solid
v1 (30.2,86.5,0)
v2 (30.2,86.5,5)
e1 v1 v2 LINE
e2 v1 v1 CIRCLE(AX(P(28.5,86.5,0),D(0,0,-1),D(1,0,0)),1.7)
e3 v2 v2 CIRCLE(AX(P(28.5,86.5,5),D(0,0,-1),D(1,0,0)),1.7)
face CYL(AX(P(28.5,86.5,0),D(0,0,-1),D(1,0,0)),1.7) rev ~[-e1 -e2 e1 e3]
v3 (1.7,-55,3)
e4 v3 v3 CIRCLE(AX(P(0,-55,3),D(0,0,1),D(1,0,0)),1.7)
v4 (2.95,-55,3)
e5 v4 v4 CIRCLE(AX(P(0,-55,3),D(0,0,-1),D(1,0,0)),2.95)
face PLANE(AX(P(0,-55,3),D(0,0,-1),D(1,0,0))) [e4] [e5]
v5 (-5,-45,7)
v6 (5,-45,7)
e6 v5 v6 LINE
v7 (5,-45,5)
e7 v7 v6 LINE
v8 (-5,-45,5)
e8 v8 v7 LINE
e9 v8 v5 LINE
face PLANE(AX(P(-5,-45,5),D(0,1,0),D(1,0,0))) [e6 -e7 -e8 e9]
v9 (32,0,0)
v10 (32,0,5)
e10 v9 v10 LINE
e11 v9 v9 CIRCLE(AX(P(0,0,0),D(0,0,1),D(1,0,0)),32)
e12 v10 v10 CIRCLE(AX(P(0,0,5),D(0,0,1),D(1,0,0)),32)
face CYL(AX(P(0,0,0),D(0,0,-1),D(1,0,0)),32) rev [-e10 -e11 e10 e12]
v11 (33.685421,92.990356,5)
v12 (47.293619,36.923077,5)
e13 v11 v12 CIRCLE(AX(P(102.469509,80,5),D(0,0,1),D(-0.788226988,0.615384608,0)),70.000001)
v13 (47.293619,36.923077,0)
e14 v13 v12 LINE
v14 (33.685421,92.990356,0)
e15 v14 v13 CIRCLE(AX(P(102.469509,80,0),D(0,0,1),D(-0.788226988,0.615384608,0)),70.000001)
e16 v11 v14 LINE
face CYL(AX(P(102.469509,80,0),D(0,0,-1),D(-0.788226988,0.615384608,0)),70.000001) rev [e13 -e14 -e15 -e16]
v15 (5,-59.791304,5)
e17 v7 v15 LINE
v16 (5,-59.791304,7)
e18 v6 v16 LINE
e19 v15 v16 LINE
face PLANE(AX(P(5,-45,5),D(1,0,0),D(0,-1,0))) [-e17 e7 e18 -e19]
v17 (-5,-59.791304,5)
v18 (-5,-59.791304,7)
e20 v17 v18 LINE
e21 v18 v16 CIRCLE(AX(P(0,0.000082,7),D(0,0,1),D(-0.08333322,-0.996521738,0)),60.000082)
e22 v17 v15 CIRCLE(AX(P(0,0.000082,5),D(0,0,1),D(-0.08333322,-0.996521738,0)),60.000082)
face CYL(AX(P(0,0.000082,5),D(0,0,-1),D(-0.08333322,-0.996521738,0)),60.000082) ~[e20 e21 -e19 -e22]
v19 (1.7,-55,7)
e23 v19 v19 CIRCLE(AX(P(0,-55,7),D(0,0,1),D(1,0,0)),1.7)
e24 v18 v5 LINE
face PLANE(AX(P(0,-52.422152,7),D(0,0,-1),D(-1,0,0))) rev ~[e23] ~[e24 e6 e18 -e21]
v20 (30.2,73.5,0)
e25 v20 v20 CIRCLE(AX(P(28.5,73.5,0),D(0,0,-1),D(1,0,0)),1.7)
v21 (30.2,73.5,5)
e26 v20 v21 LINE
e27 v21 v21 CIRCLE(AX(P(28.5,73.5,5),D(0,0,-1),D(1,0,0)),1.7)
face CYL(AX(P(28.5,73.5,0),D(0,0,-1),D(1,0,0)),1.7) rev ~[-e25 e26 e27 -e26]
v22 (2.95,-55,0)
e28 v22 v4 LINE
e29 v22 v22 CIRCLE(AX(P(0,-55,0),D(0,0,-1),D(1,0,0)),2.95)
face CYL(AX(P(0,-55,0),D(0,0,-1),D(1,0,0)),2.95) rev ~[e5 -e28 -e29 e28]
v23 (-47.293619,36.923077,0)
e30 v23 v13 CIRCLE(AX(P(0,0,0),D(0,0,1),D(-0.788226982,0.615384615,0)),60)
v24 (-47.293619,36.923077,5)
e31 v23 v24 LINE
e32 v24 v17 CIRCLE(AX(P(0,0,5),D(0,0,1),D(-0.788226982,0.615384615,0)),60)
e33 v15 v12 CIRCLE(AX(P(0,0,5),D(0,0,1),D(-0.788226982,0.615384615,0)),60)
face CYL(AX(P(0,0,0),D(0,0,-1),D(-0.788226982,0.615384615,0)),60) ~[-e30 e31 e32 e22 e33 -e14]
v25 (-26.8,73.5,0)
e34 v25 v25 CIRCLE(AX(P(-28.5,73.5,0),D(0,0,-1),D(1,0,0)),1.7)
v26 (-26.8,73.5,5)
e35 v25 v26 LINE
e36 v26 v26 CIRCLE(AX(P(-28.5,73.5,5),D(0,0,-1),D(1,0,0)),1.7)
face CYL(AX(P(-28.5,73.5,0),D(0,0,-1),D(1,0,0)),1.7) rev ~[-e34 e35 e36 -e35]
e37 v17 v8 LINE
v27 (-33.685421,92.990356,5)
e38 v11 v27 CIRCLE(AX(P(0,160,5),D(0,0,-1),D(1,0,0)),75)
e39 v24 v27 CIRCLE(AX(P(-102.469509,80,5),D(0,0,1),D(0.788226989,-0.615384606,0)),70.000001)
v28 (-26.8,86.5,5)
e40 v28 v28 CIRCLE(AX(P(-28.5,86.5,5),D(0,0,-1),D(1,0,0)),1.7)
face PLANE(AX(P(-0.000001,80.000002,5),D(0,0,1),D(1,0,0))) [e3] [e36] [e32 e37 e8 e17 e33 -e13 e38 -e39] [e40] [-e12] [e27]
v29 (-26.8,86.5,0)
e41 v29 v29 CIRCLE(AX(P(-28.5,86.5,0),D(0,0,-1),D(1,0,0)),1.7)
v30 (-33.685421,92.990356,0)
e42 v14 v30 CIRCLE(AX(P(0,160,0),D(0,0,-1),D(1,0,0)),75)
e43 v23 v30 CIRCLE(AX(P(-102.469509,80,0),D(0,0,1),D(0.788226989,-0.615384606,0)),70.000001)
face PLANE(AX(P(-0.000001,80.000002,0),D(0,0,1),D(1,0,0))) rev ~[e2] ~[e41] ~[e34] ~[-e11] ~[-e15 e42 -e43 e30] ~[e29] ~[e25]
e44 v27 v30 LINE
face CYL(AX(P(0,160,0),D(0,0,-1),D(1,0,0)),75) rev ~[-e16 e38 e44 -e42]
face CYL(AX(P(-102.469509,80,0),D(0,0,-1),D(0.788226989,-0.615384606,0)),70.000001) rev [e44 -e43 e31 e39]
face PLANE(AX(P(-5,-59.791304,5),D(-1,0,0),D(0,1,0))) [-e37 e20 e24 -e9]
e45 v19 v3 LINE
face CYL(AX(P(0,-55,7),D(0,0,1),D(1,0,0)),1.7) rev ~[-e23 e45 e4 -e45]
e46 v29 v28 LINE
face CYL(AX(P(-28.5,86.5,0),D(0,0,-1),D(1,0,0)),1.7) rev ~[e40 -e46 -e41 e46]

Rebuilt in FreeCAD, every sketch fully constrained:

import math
import FreeCAD as App
import Part
import Sketcher

doc = App.newDocument("Part")
body = doc.addObject("PartDesign::Body", "Body")

# Sketch on XY plane
sketch1 = body.newObject("Sketcher::SketchObject", "Sketch")
sketch1.AttachmentSupport = (doc.getObject("XY_Plane"), [""])
sketch1.MapMode = "FlatFace"
sketch1.addGeometry(Part.ArcOfCircle(Part.Circle(App.Vector(0, 0, 0), App.Vector(0, 0, 1), 60), math.radians(142.020128), math.radians(397.979872)), False)
sketch1.addGeometry(Part.ArcOfCircle(Part.Circle(App.Vector(102.469509, 80, 0), App.Vector(0, 0, 1), 70.000001), math.radians(142.020128), math.radians(217.979872)), False)
sketch1.addGeometry(Part.ArcOfCircle(Part.Circle(App.Vector(0, 160, 0), App.Vector(0, 0, 1), 60), math.radians(-37.979873), math.radians(217.979813)), False)
sketch1.addGeometry(Part.ArcOfCircle(Part.Circle(App.Vector(-102.469509, 80, 0), App.Vector(0, 0, 1), 70.000001), math.radians(-37.979872), math.radians(37.979922)), False)
sketch1.addGeometry(Part.Circle(App.Vector(0, 0, 0), App.Vector(0, 0, 1), 32), False)
sketch1.addGeometry(Part.Circle(App.Vector(0, 160, 0), App.Vector(0, 0, 1), 32), False)
sketch1.addConstraint(Sketcher.Constraint("Coincident", 0, 2, 1, 2))
sketch1.addConstraint(Sketcher.Constraint("Coincident", 1, 1, 2, 1))
sketch1.addConstraint(Sketcher.Constraint("Coincident", 2, 2, 3, 2))
sketch1.addConstraint(Sketcher.Constraint("Coincident", 3, 1, 0, 1))
sketch1.addConstraint(Sketcher.Constraint("Coincident", 0, 3, -1, 1))
sketch1.addConstraint(Sketcher.Constraint("Coincident", 4, 3, -1, 1))
sketch1.addConstraint(Sketcher.Constraint("Coincident", 5, 3, 2, 3))
sketch1.addConstraint(Sketcher.Constraint("PointOnObject", 2, 3, -2))
sketch1.addConstraint(Sketcher.Constraint("Diameter", 4, 64.0))
sketch1.addConstraint(Sketcher.Constraint("Diameter", 5, 64.0))
sketch1.addConstraint(Sketcher.Constraint("Radius", 0, 60.0))
sketch1.addConstraint(Sketcher.Constraint("Radius", 1, 70.000001))
sketch1.addConstraint(Sketcher.Constraint("Radius", 2, 60.0))
sketch1.addConstraint(Sketcher.Constraint("Radius", 3, 70.000001))
sketch1.addConstraint(Sketcher.Constraint("DistanceY", -1, 1, 1, 3, 80.0))
sketch1.addConstraint(Sketcher.Constraint("DistanceX", -1, 1, 0, 2, 47.293619))
sketch1.addConstraint(Sketcher.Constraint("DistanceX", -1, 1, 1, 1, 47.293619))
sketch1.addConstraint(Sketcher.Constraint("DistanceX", 3, 1, -1, 1, 47.293619))
sketch1.addConstraint(Sketcher.Constraint("DistanceY", 3, 3, 2, 2, 43.076972))
pad1 = body.newObject("PartDesign::Pad", "Pad")
pad1.Profile = sketch1
pad1.Length = 5

# Sketch on XY plane
sketch2 = body.newObject("Sketcher::SketchObject", "Sketch001")
sketch2.AttachmentSupport = (doc.getObject("XY_Plane"), [""])
sketch2.MapMode = "FlatFace"
sketch2.AttachmentOffset = App.Placement(App.Vector(0, 0, 5), App.Rotation())
sketch2.addGeometry(Part.LineSegment(App.Vector(-5, -45, 0), App.Vector(-5, -59.791304, 0)), False)
sketch2.addGeometry(Part.ArcOfCircle(Part.Circle(App.Vector(0, 0.000082, 0), App.Vector(0, 0, 1), 60.000082), math.radians(-94.780185), math.radians(-85.219815)), False)
sketch2.addGeometry(Part.LineSegment(App.Vector(5, -59.791304, 0), App.Vector(5, -45, 0)), False)
sketch2.addGeometry(Part.LineSegment(App.Vector(5, -45, 0), App.Vector(-5, -45, 0)), False)
sketch2.addGeometry(Part.ArcOfCircle(Part.Circle(App.Vector(0, 159.999918, 0), App.Vector(0, 0, 1), 60.000082), math.radians(85.219815), math.radians(94.780185)), False)
sketch2.addGeometry(Part.LineSegment(App.Vector(-5, 219.791304, 0), App.Vector(-5, 205, 0)), False)
sketch2.addGeometry(Part.LineSegment(App.Vector(-5, 205, 0), App.Vector(5, 205, 0)), False)
sketch2.addGeometry(Part.LineSegment(App.Vector(5, 205, 0), App.Vector(5, 219.791304, 0)), False)
sketch2.addConstraint(Sketcher.Constraint("Coincident", 0, 2, 1, 1))
sketch2.addConstraint(Sketcher.Constraint("Coincident", 1, 2, 2, 1))
sketch2.addConstraint(Sketcher.Constraint("Coincident", 2, 2, 3, 1))
sketch2.addConstraint(Sketcher.Constraint("Coincident", 3, 2, 0, 1))
sketch2.addConstraint(Sketcher.Constraint("Coincident", 4, 2, 5, 1))
sketch2.addConstraint(Sketcher.Constraint("Coincident", 5, 2, 6, 1))
sketch2.addConstraint(Sketcher.Constraint("Coincident", 6, 2, 7, 1))
sketch2.addConstraint(Sketcher.Constraint("Coincident", 7, 2, 4, 1))
sketch2.addConstraint(Sketcher.Constraint("Vertical", 0))
sketch2.addConstraint(Sketcher.Constraint("Vertical", 2))
sketch2.addConstraint(Sketcher.Constraint("Horizontal", 3))
sketch2.addConstraint(Sketcher.Constraint("Vertical", 5))
sketch2.addConstraint(Sketcher.Constraint("Horizontal", 6))
sketch2.addConstraint(Sketcher.Constraint("Vertical", 7))
sketch2.addConstraint(Sketcher.Constraint("Equal", 1, 4))
sketch2.addConstraint(Sketcher.Constraint("Symmetric", 0, 2, 1, 2, -2))
sketch2.addConstraint(Sketcher.Constraint("Symmetric", 4, 2, 7, 2, -2))
sketch2.addConstraint(Sketcher.Constraint("Vertical", 3, 2, 4, 2))
sketch2.addConstraint(Sketcher.Constraint("Equal", 2, 5))
sketch2.addConstraint(Sketcher.Constraint("DistanceX", 3, 2, 3, 1, 10.0))
sketch2.addConstraint(Sketcher.Constraint("DistanceY", 2, 2, -1, 1, 45.0))
sketch2.addConstraint(Sketcher.Constraint("DistanceY", -1, 1, 5, 2, 205.0))
sketch2.addConstraint(Sketcher.Constraint("Radius", 1, 60.000082))
sketch2.addConstraint(Sketcher.Constraint("DistanceY", 0, 2, 0, 1, 14.791304))
pad2 = body.newObject("PartDesign::Pad", "Pad001")
pad2.Profile = sketch2
pad2.Length = 2

# Sketch on XY plane
sketch3 = body.newObject("Sketcher::SketchObject", "Sketch002")
sketch3.AttachmentSupport = (doc.getObject("XY_Plane"), [""])
sketch3.MapMode = "FlatFace"
sketch3.AttachmentOffset = App.Placement(App.Vector(0, 0, 7), App.Rotation())
sketch3.addGeometry(Part.Circle(App.Vector(0, -55, 0), App.Vector(0, 0, 1), 1.7), False)
sketch3.addGeometry(Part.Circle(App.Vector(0, 215, 0), App.Vector(0, 0, 1), 1.7), False)
sketch3.addConstraint(Sketcher.Constraint("Equal", 0, 1))
sketch3.addConstraint(Sketcher.Constraint("PointOnObject", 0, 3, -2))
sketch3.addConstraint(Sketcher.Constraint("PointOnObject", 1, 3, -2))
sketch3.addConstraint(Sketcher.Constraint("Diameter", 0, 3.4))
sketch3.addConstraint(Sketcher.Constraint("DistanceY", 0, 3, -1, 1, 55.0))
sketch3.addConstraint(Sketcher.Constraint("DistanceY", -1, 1, 1, 3, 215.0))
pocket1 = body.newObject("PartDesign::Pocket", "Pocket")
pocket1.Profile = sketch3
pocket1.Type = "ThroughAll"

# Sketch on XY plane
sketch4 = body.newObject("Sketcher::SketchObject", "Sketch003")
sketch4.AttachmentSupport = (doc.getObject("XY_Plane"), [""])
sketch4.MapMode = "FlatFace"
sketch4.addGeometry(Part.Circle(App.Vector(0, -55, 0), App.Vector(0, 0, 1), 2.95), False)
sketch4.addGeometry(Part.Circle(App.Vector(0, 215, 0), App.Vector(0, 0, 1), 2.95), False)
sketch4.addConstraint(Sketcher.Constraint("Equal", 0, 1))
sketch4.addConstraint(Sketcher.Constraint("PointOnObject", 0, 3, -2))
sketch4.addConstraint(Sketcher.Constraint("PointOnObject", 1, 3, -2))
sketch4.addConstraint(Sketcher.Constraint("Diameter", 0, 5.9))
sketch4.addConstraint(Sketcher.Constraint("DistanceY", 0, 3, -1, 1, 55.0))
sketch4.addConstraint(Sketcher.Constraint("DistanceY", -1, 1, 1, 3, 215.0))
pocket2 = body.newObject("PartDesign::Pocket", "Pocket001")
pocket2.Profile = sketch4
pocket2.Length = 3
pocket2.Reversed = True

# Sketch on XY plane
sketch5 = body.newObject("Sketcher::SketchObject", "Sketch004")
sketch5.AttachmentSupport = (doc.getObject("XY_Plane"), [""])
sketch5.MapMode = "FlatFace"
sketch5.addGeometry(Part.Circle(App.Vector(28.5, 73.5, 0), App.Vector(0, 0, 1), 1.7), False)
sketch5.addGeometry(Part.Circle(App.Vector(28.5, 86.5, 0), App.Vector(0, 0, 1), 1.7), False)
sketch5.addGeometry(Part.Circle(App.Vector(-28.5, 86.5, 0), App.Vector(0, 0, 1), 1.7), False)
sketch5.addGeometry(Part.Circle(App.Vector(-28.5, 73.5, 0), App.Vector(0, 0, 1), 1.7), False)
sketch5.addConstraint(Sketcher.Constraint("Equal", 0, 1))
sketch5.addConstraint(Sketcher.Constraint("Equal", 1, 2))
sketch5.addConstraint(Sketcher.Constraint("Equal", 2, 3))
sketch5.addConstraint(Sketcher.Constraint("Symmetric", 1, 3, 2, 3, -2))
sketch5.addConstraint(Sketcher.Constraint("Symmetric", 0, 3, 3, 3, -2))
sketch5.addConstraint(Sketcher.Constraint("Vertical", 0, 3, 1, 3))
sketch5.addConstraint(Sketcher.Constraint("Diameter", 0, 3.4))
sketch5.addConstraint(Sketcher.Constraint("DistanceY", 0, 3, 1, 3, 13.0))
sketch5.addConstraint(Sketcher.Constraint("DistanceX", 2, 3, 1, 3, 57.0))
sketch5.addConstraint(Sketcher.Constraint("DistanceY", -1, 1, 0, 3, 73.5))
pocket3 = body.newObject("PartDesign::Pocket", "Pocket002")
pocket3.Profile = sketch5
pocket3.Type = "ThroughAll"
pocket3.Reversed = True

# Sketch on XY plane
sketch6 = body.newObject("Sketcher::SketchObject", "Sketch005")
sketch6.AttachmentSupport = (doc.getObject("XY_Plane"), [""])
sketch6.MapMode = "FlatFace"
sketch6.addGeometry(Part.Circle(App.Vector(0, 160, 0), App.Vector(0, 0, 1), 75), False)
sketch6.addConstraint(Sketcher.Constraint("PointOnObject", 0, 3, -2))
sketch6.addConstraint(Sketcher.Constraint("Diameter", 0, 150.0))
sketch6.addConstraint(Sketcher.Constraint("DistanceY", -1, 1, 0, 3, 160.0))
pocket4 = body.newObject("PartDesign::Pocket", "Pocket003")
pocket4.Profile = sketch6
pocket4.Type = "ThroughAll"
pocket4.Reversed = True

doc.recompute()
